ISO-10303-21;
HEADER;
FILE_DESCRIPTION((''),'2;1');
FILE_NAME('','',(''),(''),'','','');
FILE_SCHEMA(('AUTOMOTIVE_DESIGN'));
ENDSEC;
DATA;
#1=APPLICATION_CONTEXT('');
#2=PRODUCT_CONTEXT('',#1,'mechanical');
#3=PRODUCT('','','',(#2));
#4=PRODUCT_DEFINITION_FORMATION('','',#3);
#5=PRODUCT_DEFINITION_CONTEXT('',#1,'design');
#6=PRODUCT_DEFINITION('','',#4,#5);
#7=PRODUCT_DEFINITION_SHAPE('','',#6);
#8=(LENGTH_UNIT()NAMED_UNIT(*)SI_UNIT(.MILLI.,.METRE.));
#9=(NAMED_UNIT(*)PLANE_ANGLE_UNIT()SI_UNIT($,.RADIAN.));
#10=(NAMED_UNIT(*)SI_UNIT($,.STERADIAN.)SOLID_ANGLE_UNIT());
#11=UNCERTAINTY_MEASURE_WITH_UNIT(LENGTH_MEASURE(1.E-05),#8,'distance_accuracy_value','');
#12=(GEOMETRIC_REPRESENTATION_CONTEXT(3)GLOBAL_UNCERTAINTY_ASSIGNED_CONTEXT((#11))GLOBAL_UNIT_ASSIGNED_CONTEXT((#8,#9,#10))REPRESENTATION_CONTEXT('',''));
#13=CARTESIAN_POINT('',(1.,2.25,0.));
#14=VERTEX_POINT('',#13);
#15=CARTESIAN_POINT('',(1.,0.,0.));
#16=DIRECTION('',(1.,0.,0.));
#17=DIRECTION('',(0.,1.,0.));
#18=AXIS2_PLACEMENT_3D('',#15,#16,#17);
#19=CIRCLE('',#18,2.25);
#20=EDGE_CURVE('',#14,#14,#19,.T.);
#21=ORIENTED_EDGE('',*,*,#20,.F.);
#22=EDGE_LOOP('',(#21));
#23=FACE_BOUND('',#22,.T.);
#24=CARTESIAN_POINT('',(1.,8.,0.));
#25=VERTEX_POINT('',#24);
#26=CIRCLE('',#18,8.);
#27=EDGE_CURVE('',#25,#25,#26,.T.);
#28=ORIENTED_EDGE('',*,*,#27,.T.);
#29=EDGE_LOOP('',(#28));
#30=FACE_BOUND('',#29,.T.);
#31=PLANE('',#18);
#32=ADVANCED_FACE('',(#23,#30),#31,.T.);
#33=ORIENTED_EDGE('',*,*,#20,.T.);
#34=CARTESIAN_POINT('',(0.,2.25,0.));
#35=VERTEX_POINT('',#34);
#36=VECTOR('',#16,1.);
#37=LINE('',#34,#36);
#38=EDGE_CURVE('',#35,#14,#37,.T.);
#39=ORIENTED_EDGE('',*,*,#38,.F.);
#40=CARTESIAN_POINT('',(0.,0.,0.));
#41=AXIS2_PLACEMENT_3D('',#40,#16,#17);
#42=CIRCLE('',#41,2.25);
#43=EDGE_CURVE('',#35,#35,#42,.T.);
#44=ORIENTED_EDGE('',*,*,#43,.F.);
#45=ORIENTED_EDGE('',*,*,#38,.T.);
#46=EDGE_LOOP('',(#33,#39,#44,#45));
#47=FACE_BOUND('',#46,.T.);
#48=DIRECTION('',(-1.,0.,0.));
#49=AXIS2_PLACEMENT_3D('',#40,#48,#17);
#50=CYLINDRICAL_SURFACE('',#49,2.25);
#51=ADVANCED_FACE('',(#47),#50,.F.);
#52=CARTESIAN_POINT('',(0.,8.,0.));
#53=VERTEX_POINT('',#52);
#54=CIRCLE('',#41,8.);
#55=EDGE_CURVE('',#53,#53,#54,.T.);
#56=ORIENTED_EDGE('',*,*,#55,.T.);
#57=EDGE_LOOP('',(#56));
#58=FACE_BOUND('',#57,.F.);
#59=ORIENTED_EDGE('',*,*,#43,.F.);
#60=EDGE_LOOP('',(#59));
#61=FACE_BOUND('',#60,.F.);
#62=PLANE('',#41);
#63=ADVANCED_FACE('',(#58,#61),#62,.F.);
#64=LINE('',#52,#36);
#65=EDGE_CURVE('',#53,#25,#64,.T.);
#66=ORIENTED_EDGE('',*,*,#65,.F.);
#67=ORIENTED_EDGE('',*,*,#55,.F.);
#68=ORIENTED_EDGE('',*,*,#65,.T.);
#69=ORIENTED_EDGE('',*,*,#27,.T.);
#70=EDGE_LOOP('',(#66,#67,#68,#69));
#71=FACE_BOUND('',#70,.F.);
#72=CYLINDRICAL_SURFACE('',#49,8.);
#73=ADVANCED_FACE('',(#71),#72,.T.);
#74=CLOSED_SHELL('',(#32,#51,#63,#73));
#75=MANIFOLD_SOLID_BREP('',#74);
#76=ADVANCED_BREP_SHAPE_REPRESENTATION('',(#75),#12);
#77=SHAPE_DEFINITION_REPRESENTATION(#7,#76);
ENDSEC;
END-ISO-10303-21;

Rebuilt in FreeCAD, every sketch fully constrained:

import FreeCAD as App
import Part
import Sketcher
from FreeCAD import Vector
Q = App.Units.Quantity

doc = App.newDocument("Part")
body = doc.addObject("PartDesign::Body", "Body")

sketch1 = body.newObject("Sketcher::SketchObject", "Sketch")
sketch1.AttachmentSupport = (doc.getObject("YZ_Plane"), [""])
sketch1.MapMode = "FlatFace"
sketch1.addGeometry(Part.Circle(Vector(0, 0, 0), Vector(0, 0, 1), 8), False)
sketch1.addGeometry(Part.Circle(Vector(0, 0, 0), Vector(0, 0, 1), 2.25), False)
sketch1.addConstraint(Sketcher.Constraint("Coincident", 0, 3, -1, 1))
sketch1.addConstraint(Sketcher.Constraint("Coincident", 1, 3, -1, 1))
sketch1.addConstraint(Sketcher.Constraint("Diameter", 0, Q("16 mm")))
sketch1.addConstraint(Sketcher.Constraint("Diameter", 1, Q("4.5 mm")))
pad1 = body.newObject("PartDesign::Pad", "Pad")
pad1.Profile = sketch1
pad1.Length = 1

doc.recompute()
